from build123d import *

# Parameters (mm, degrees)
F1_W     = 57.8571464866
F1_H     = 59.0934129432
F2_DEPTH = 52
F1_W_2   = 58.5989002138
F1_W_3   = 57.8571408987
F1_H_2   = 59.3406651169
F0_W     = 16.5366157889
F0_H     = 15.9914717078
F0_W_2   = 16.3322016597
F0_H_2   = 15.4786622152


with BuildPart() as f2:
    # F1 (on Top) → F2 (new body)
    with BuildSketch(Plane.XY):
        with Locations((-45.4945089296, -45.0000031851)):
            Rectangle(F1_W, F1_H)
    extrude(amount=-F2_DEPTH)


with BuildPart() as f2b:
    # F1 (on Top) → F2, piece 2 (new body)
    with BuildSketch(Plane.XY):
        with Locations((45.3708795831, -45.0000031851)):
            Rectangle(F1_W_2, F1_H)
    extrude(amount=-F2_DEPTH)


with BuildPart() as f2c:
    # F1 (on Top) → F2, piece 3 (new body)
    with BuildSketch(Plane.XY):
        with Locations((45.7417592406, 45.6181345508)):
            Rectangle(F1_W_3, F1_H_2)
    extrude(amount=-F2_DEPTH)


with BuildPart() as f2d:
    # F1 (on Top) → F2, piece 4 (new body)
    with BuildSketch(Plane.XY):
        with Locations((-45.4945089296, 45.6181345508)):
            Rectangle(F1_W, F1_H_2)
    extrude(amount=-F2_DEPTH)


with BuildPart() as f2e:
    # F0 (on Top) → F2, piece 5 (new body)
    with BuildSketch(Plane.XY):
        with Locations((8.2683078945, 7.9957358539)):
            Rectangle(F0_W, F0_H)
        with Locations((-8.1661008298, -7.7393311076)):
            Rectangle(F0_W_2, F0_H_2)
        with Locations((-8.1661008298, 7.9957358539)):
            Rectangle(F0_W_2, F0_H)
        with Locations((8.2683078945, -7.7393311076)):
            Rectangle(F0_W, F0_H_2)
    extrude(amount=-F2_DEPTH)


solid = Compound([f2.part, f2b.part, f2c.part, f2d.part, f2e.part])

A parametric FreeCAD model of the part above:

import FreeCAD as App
import Part
import Sketcher

V = App.Vector
Q = App.Units.Quantity

doc = App.newDocument("Part")
body = doc.addObject("PartDesign::Body", "Body")

sketch1 = doc.addObject("Sketcher::SketchObject", "Sketch")
body.addObject(sketch1)
sketch1.AttachmentSupport = (doc.XY_Plane, [""])
sketch1.MapMode = "FlatFace"
sketch1.addGeometry(Part.LineSegment(V(-74, -15, 0), V(-74, -75, 0)), False)
sketch1.addGeometry(Part.LineSegment(V(-74, -75, 0), V(-17, -75, 0)), False)
sketch1.addGeometry(Part.LineSegment(V(-17, -75, 0), V(-17, -15, 0)), False)
sketch1.addGeometry(Part.LineSegment(V(-17, -15, 0), V(-74, -15, 0)), False)
sketch1.addConstraint(Sketcher.Constraint("Coincident", 0, 2, 1, 1))
sketch1.addConstraint(Sketcher.Constraint("Coincident", 1, 2, 2, 1))
sketch1.addConstraint(Sketcher.Constraint("Coincident", 2, 2, 3, 1))
sketch1.addConstraint(Sketcher.Constraint("Coincident", 3, 2, 0, 1))
sketch1.addConstraint(Sketcher.Constraint("Vertical", 0))
sketch1.addConstraint(Sketcher.Constraint("Horizontal", 1))
sketch1.addConstraint(Sketcher.Constraint("Vertical", 2))
sketch1.addConstraint(Sketcher.Constraint("Horizontal", 3))
sketch1.addConstraint(Sketcher.Constraint("DistanceX", 1, 1, 1, 2, Q("57.857146 mm")))
sketch1.addConstraint(Sketcher.Constraint("DistanceY", 0, 2, 0, 1, Q("59.093413 mm")))
sketch1.addConstraint(Sketcher.Constraint("DistanceY", 0, 2, -1, 1, Q("74.54671 mm")))
sketch1.addConstraint(Sketcher.Constraint("DistanceX", 0, 2, -1, 1, Q("74.423082 mm")))
pad1 = doc.addObject("PartDesign::Pad", "Pad")
body.addObject(pad1)
pad1.Profile = sketch1
pad1.Length = 52
pad1.Reversed = True
body2 = doc.addObject("PartDesign::Body", "Body001")

sketch2 = doc.addObject("Sketcher::SketchObject", "Sketch001")
body2.addObject(sketch2)
sketch2.AttachmentSupport = (doc.getObject("XY_Plane001"), [""])
sketch2.MapMode = "FlatFace"
sketch2.addGeometry(Part.LineSegment(V(16, -15, 0), V(16, -75, 0)), False)
sketch2.addGeometry(Part.LineSegment(V(16, -75, 0), V(75, -75, 0)), False)
sketch2.addGeometry(Part.LineSegment(V(75, -75, 0), V(75, -15, 0)), False)
sketch2.addGeometry(Part.LineSegment(V(75, -15, 0), V(16, -15, 0)), False)
sketch2.addConstraint(Sketcher.Constraint("Coincident", 0, 2, 1, 1))
sketch2.addConstraint(Sketcher.Constraint("Coincident", 1, 2, 2, 1))
sketch2.addConstraint(Sketcher.Constraint("Coincident", 2, 2, 3, 1))
sketch2.addConstraint(Sketcher.Constraint("Coincident", 3, 2, 0, 1))
sketch2.addConstraint(Sketcher.Constraint("Vertical", 0))
sketch2.addConstraint(Sketcher.Constraint("Horizontal", 1))
sketch2.addConstraint(Sketcher.Constraint("Vertical", 2))
sketch2.addConstraint(Sketcher.Constraint("Horizontal", 3))
sketch2.addConstraint(Sketcher.Constraint("DistanceX", 1, 1, 1, 2, Q("58.5989 mm")))
sketch2.addConstraint(Sketcher.Constraint("DistanceY", 0, 2, 0, 1, Q("59.093413 mm")))
sketch2.addConstraint(Sketcher.Constraint("DistanceX", -1, 1, 0, 2, Q("16.071429 mm")))
sketch2.addConstraint(Sketcher.Constraint("DistanceY", 0, 2, -1, 1, Q("74.54671 mm")))
pad2 = doc.addObject("PartDesign::Pad", "Pad001")
body2.addObject(pad2)
pad2.Profile = sketch2
pad2.Length = 52
pad2.Reversed = True
body3 = doc.addObject("PartDesign::Body", "Body002")

sketch3 = doc.addObject("Sketcher::SketchObject", "Sketch002")
body3.addObject(sketch3)
sketch3.AttachmentSupport = (doc.getObject("XY_Plane002"), [""])
sketch3.MapMode = "FlatFace"
sketch3.addGeometry(Part.LineSegment(V(17, 75, 0), V(17, 16, 0)), False)
sketch3.addGeometry(Part.LineSegment(V(17, 16, 0), V(75, 16, 0)), False)
sketch3.addGeometry(Part.LineSegment(V(75, 16, 0), V(75, 75, 0)), False)
sketch3.addGeometry(Part.LineSegment(V(75, 75, 0), V(17, 75, 0)), False)
sketch3.addConstraint(Sketcher.Constraint("Coincident", 0, 2, 1, 1))
sketch3.addConstraint(Sketcher.Constraint("Coincident", 1, 2, 2, 1))
sketch3.addConstraint(Sketcher.Constraint("Coincident", 2, 2, 3, 1))
sketch3.addConstraint(Sketcher.Constraint("Coincident", 3, 2, 0, 1))
sketch3.addConstraint(Sketcher.Constraint("Vertical", 0))
sketch3.addConstraint(Sketcher.Constraint("Horizontal", 1))
sketch3.addConstraint(Sketcher.Constraint("Vertical", 2))
sketch3.addConstraint(Sketcher.Constraint("Horizontal", 3))
sketch3.addConstraint(Sketcher.Constraint("DistanceX", 1, 1, 1, 2, Q("57.857141 mm")))
sketch3.addConstraint(Sketcher.Constraint("DistanceY", -1, 1, 0, 2, Q("15.947802 mm")))
sketch3.addConstraint(Sketcher.Constraint("DistanceY", 0, 2, 0, 1, Q("59.340665 mm")))
sketch3.addConstraint(Sketcher.Constraint("DistanceX", -1, 1, 0, 2, Q("16.813189 mm")))
pad3 = doc.addObject("PartDesign::Pad", "Pad002")
body3.addObject(pad3)
pad3.Profile = sketch3
pad3.Length = 52
pad3.Reversed = True
body4 = doc.addObject("PartDesign::Body", "Body003")

sketch4 = doc.addObject("Sketcher::SketchObject", "Sketch003")
body4.addObject(sketch4)
sketch4.AttachmentSupport = (doc.getObject("XY_Plane003"), [""])
sketch4.MapMode = "FlatFace"
sketch4.addGeometry(Part.LineSegment(V(-74, 75, 0), V(-74, 16, 0)), False)
sketch4.addGeometry(Part.LineSegment(V(-74, 16, 0), V(-17, 16, 0)), False)
sketch4.addGeometry(Part.LineSegment(V(-17, 16, 0), V(-17, 75, 0)), False)
sketch4.addGeometry(Part.LineSegment(V(-17, 75, 0), V(-74, 75, 0)), False)
sketch4.addConstraint(Sketcher.Constraint("Coincident", 0, 2, 1, 1))
sketch4.addConstraint(Sketcher.Constraint("Coincident", 1, 2, 2, 1))
sketch4.addConstraint(Sketcher.Constraint("Coincident", 2, 2, 3, 1))
sketch4.addConstraint(Sketcher.Constraint("Coincident", 3, 2, 0, 1))
sketch4.addConstraint(Sketcher.Constraint("Vertical", 0))
sketch4.addConstraint(Sketcher.Constraint("Horizontal", 1))
sketch4.addConstraint(Sketcher.Constraint("Vertical", 2))
sketch4.addConstraint(Sketcher.Constraint("Horizontal", 3))
sketch4.addConstraint(Sketcher.Constraint("DistanceY", -1, 1, 0, 2, Q("15.947802 mm")))
sketch4.addConstraint(Sketcher.Constraint("DistanceX", 1, 1, 1, 2, Q("57.857146 mm")))
sketch4.addConstraint(Sketcher.Constraint("DistanceY", 0, 2, 0, 1, Q("59.340665 mm")))
sketch4.addConstraint(Sketcher.Constraint("DistanceX", 0, 2, -1, 1, Q("74.423082 mm")))
pad4 = doc.addObject("PartDesign::Pad", "Pad003")
body4.addObject(pad4)
pad4.Profile = sketch4
pad4.Length = 52
pad4.Reversed = True
body5 = doc.addObject("PartDesign::Body", "Body004")

sketch5 = doc.addObject("Sketcher::SketchObject", "Sketch004")
body5.addObject(sketch5)
sketch5.AttachmentSupport = (doc.getObject("XY_Plane004"), [""])
sketch5.MapMode = "FlatFace"
sketch5.addGeometry(Part.LineSegment(V(17, 16, 0), V(-16, 16, 0)), False)
sketch5.addGeometry(Part.LineSegment(V(-16, 16, 0), V(-16, -15, 0)), False)
sketch5.addGeometry(Part.LineSegment(V(-16, -15, 0), V(17, -15, 0)), False)
sketch5.addGeometry(Part.LineSegment(V(17, -15, 0), V(17, 16, 0)), False)
sketch5.addConstraint(Sketcher.Constraint("Coincident", 0, 2, 1, 1))
sketch5.addConstraint(Sketcher.Constraint("Coincident", 1, 2, 2, 1))
sketch5.addConstraint(Sketcher.Constraint("Coincident", 2, 2, 3, 1))
sketch5.addConstraint(Sketcher.Constraint("Coincident", 3, 2, 0, 1))
sketch5.addConstraint(Sketcher.Constraint("Horizontal", 0))
sketch5.addConstraint(Sketcher.Constraint("Vertical", 1))
sketch5.addConstraint(Sketcher.Constraint("Horizontal", 2))
sketch5.addConstraint(Sketcher.Constraint("Vertical", 3))
sketch5.addConstraint(Sketcher.Constraint("DistanceX", 0, 2, -1, 1, Q("16.332202 mm")))
sketch5.addConstraint(Sketcher.Constraint("DistanceX", 0, 2, 0, 1, Q("32.868817 mm")))
sketch5.addConstraint(Sketcher.Constraint("DistanceY", 1, 2, 1, 1, Q("31.470134 mm")))
sketch5.addConstraint(Sketcher.Constraint("DistanceY", -1, 1, 0, 2, Q("15.991472 mm")))
pad5 = doc.addObject("PartDesign::Pad", "Pad004")
body5.addObject(pad5)
pad5.Profile = sketch5
pad5.Length = 52
pad5.Reversed = True

doc.recompute()
